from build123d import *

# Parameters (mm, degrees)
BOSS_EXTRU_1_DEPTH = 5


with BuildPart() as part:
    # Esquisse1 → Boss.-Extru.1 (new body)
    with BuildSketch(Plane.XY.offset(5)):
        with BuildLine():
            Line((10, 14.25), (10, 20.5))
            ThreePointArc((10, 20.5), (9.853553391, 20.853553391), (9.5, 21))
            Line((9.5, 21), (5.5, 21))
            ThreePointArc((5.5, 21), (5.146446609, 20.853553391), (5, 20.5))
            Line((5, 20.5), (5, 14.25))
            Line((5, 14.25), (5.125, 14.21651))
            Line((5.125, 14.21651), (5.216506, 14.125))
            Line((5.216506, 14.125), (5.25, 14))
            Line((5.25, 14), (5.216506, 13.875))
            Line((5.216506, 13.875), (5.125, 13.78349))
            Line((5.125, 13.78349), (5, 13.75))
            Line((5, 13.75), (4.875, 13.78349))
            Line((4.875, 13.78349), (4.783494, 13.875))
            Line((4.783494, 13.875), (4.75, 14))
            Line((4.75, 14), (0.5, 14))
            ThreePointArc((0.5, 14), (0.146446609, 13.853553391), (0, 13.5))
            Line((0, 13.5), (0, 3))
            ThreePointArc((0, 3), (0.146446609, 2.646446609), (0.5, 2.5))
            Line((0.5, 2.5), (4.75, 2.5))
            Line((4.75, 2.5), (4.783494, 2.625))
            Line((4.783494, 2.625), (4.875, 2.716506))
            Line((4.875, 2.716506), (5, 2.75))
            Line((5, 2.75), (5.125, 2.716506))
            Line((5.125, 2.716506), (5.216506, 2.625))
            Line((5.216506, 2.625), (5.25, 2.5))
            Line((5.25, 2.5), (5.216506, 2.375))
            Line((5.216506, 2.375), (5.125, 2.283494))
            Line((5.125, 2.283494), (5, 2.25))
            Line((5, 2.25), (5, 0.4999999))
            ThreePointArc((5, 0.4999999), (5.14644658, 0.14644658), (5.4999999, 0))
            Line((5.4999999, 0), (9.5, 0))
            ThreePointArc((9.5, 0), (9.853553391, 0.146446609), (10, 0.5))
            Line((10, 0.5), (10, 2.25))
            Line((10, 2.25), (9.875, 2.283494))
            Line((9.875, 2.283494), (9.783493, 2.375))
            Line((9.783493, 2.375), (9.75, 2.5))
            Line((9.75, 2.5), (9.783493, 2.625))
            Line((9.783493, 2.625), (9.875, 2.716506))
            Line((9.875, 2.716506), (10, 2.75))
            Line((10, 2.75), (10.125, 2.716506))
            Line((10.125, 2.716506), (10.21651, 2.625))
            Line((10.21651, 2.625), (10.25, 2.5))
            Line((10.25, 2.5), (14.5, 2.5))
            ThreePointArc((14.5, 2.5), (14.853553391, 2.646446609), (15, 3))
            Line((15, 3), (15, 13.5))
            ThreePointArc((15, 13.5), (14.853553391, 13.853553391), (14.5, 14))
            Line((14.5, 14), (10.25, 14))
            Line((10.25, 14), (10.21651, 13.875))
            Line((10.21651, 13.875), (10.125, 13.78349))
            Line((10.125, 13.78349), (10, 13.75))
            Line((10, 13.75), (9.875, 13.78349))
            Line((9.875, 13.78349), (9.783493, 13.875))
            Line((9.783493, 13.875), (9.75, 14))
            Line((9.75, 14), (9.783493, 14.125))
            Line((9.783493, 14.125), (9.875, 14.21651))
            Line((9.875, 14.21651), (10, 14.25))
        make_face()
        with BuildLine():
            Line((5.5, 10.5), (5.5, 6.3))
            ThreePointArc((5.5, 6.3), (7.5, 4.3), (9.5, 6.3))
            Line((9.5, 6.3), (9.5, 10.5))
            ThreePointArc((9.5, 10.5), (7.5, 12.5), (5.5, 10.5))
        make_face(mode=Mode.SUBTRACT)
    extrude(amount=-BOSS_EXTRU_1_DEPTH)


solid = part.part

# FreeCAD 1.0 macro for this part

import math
import FreeCAD as App
import Part
import Sketcher
from FreeCAD import Vector

doc = App.newDocument("Part")
params = doc.addObject("Spreadsheet::Sheet", "Params")
for row, (alias, value) in enumerate([
    ("sketch1_radius", "2 mm"),
    ("sketch1_radius2", "0.5 mm"),
    ("sketch1_height", "10.5 mm"),
    ("sketch1_height2", "4.2 mm"),
    ("sketch1_width", "4.25 mm"),
    ("pad1_length", "5 mm"),
], start=1):
    params.set(f"A{row}", alias)
    params.set(f"B{row}", "=" + value)
    params.setAlias(f"B{row}", alias)

body = doc.addObject("PartDesign::Body", "Body")

sketch1 = doc.addObject("Sketcher::SketchObject", "Sketch")
body.addObject(sketch1)
sketch1.AttachmentSupport = (doc.XY_Plane, [""])
sketch1.MapMode = "FlatFace"
sketch1.AttachmentOffset = App.Placement(Vector(0, 0, 5), App.Rotation())
sketch1.addGeometry([
    Part.LineSegment(Vector(10, 14.25, 0), Vector(10, 20.5, 0)),
    Part.ArcOfCircle(Part.Circle(Vector(9.5, 20.5, 0), Vector(0, 0, 1), 0.5), math.radians(0), math.radians(90)),
    Part.LineSegment(Vector(9.5, 21, 0), Vector(5.5, 21, 0)),
    Part.ArcOfCircle(Part.Circle(Vector(5.5, 20.5, 0), Vector(0, 0, 1), 0.5), math.radians(90), math.radians(180)),
    Part.LineSegment(Vector(5, 20.5, 0), Vector(5, 14.25, 0)),
    Part.LineSegment(Vector(5, 14.25, 0), Vector(5.125, 14.21651, 0)),
    Part.LineSegment(Vector(5.125, 14.21651, 0), Vector(5.216506, 14.125, 0)),
    Part.LineSegment(Vector(5.216506, 14.125, 0), Vector(5.25, 14, 0)),
    Part.LineSegment(Vector(5.25, 14, 0), Vector(5.216506, 13.875, 0)),
    Part.LineSegment(Vector(5.216506, 13.875, 0), Vector(5.125, 13.78349, 0)),
    Part.LineSegment(Vector(5.125, 13.78349, 0), Vector(5, 13.75, 0)),
    Part.LineSegment(Vector(5, 13.75, 0), Vector(4.875, 13.78349, 0)),
    Part.LineSegment(Vector(4.875, 13.78349, 0), Vector(4.783494, 13.875, 0)),
    Part.LineSegment(Vector(4.783494, 13.875, 0), Vector(4.75, 14, 0)),
    Part.LineSegment(Vector(4.75, 14, 0), Vector(0.5, 14, 0)),
    Part.ArcOfCircle(Part.Circle(Vector(0.5, 13.5, 0), Vector(0, 0, 1), 0.5), math.radians(90), math.radians(180)),
    Part.LineSegment(Vector(0, 13.5, 0), Vector(0, 3, 0)),
    Part.ArcOfCircle(Part.Circle(Vector(0.5, 3, 0), Vector(0, 0, 1), 0.5), math.radians(180), math.radians(270)),
    Part.LineSegment(Vector(0.5, 2.5, 0), Vector(4.75, 2.5, 0)),
    Part.LineSegment(Vector(4.75, 2.5, 0), Vector(4.783494, 2.625, 0)),
    Part.LineSegment(Vector(4.783494, 2.625, 0), Vector(4.875, 2.716506, 0)),
    Part.LineSegment(Vector(4.875, 2.716506, 0), Vector(5, 2.75, 0)),
    Part.LineSegment(Vector(5, 2.75, 0), Vector(5.125, 2.716506, 0)),
    Part.LineSegment(Vector(5.125, 2.716506, 0), Vector(5.216506, 2.625, 0)),
    Part.LineSegment(Vector(5.216506, 2.625, 0), Vector(5.25, 2.5, 0)),
    Part.LineSegment(Vector(5.25, 2.5, 0), Vector(5.216506, 2.375, 0)),
    Part.LineSegment(Vector(5.216506, 2.375, 0), Vector(5.125, 2.283494, 0)),
    Part.LineSegment(Vector(5.125, 2.283494, 0), Vector(5, 2.25, 0)),
    Part.LineSegment(Vector(5, 2.25, 0), Vector(5, 0.5, 0)),
    Part.ArcOfCircle(Part.Circle(Vector(5.5, 0.5, 0), Vector(0, 0, 1), 0.5), math.radians(180), math.radians(270)),
    Part.LineSegment(Vector(5.5, 0, 0), Vector(9.5, 0, 0)),
    Part.ArcOfCircle(Part.Circle(Vector(9.5, 0.5, 0), Vector(0, 0, 1), 0.5), math.radians(-90), math.radians(0)),
    Part.LineSegment(Vector(10, 0.5, 0), Vector(10, 2.25, 0)),
    Part.LineSegment(Vector(10, 2.25, 0), Vector(9.875, 2.283494, 0)),
    Part.LineSegment(Vector(9.875, 2.283494, 0), Vector(9.783493, 2.375, 0)),
    Part.LineSegment(Vector(9.783493, 2.375, 0), Vector(9.75, 2.5, 0)),
    Part.LineSegment(Vector(9.75, 2.5, 0), Vector(9.783493, 2.625, 0)),
    Part.LineSegment(Vector(9.783493, 2.625, 0), Vector(9.875, 2.716506, 0)),
    Part.LineSegment(Vector(9.875, 2.716506, 0), Vector(10, 2.75, 0)),
    Part.LineSegment(Vector(10, 2.75, 0), Vector(10.125, 2.716506, 0)),
    Part.LineSegment(Vector(10.125, 2.716506, 0), Vector(10.21651, 2.625, 0)),
    Part.LineSegment(Vector(10.21651, 2.625, 0), Vector(10.25, 2.5, 0)),
    Part.LineSegment(Vector(10.25, 2.5, 0), Vector(14.5, 2.5, 0)),
    Part.ArcOfCircle(Part.Circle(Vector(14.5, 3, 0), Vector(0, 0, 1), 0.5), math.radians(-90), math.radians(0)),
    Part.LineSegment(Vector(15, 3, 0), Vector(15, 13.5, 0)),
    Part.ArcOfCircle(Part.Circle(Vector(14.5, 13.5, 0), Vector(0, 0, 1), 0.5), math.radians(0), math.radians(90)),
    Part.LineSegment(Vector(14.5, 14, 0), Vector(10.25, 14, 0)),
    Part.LineSegment(Vector(10.25, 14, 0), Vector(10.21651, 13.875, 0)),
    Part.LineSegment(Vector(10.21651, 13.875, 0), Vector(10.125, 13.78349, 0)),
    Part.LineSegment(Vector(10.125, 13.78349, 0), Vector(10, 13.75, 0)),
    Part.LineSegment(Vector(10, 13.75, 0), Vector(9.875, 13.78349, 0)),
    Part.LineSegment(Vector(9.875, 13.78349, 0), Vector(9.783493, 13.875, 0)),
    Part.LineSegment(Vector(9.783493, 13.875, 0), Vector(9.75, 14, 0)),
    Part.LineSegment(Vector(9.75, 14, 0), Vector(9.783493, 14.125, 0)),
    Part.LineSegment(Vector(9.783493, 14.125, 0), Vector(9.875, 14.21651, 0)),
    Part.LineSegment(Vector(9.875, 14.21651, 0), Vector(10, 14.25, 0)),
    Part.LineSegment(Vector(5.5, 6.3, 0), Vector(5.5, 10.5, 0)),
    Part.ArcOfCircle(Part.Circle(Vector(7.5, 10.5, 0), Vector(0, 0, 1), 2), math.radians(0), math.radians(180)),
    Part.LineSegment(Vector(9.5, 10.5, 0), Vector(9.5, 6.3, 0)),
    Part.ArcOfCircle(Part.Circle(Vector(7.5, 6.3, 0), Vector(0, 0, 1), 2), math.radians(180), math.radians(360)),
], False)
sketch1.addConstraint([
    Sketcher.Constraint("Tangent", 0, 2, 1, 1),
    Sketcher.Constraint("Tangent", 1, 2, 2, 1),
    Sketcher.Constraint("Tangent", 2, 2, 3, 1),
    Sketcher.Constraint("Tangent", 3, 2, 4, 1),
    Sketcher.Constraint("Coincident", 4, 2, 5, 1),
    Sketcher.Constraint("Coincident", 5, 2, 6, 1),
    Sketcher.Constraint("Coincident", 6, 2, 7, 1),
    Sketcher.Constraint("Coincident", 7, 2, 8, 1),
    Sketcher.Constraint("Coincident", 8, 2, 9, 1),
    Sketcher.Constraint("Coincident", 9, 2, 10, 1),
    Sketcher.Constraint("Coincident", 10, 2, 11, 1),
    Sketcher.Constraint("Coincident", 11, 2, 12, 1),
    Sketcher.Constraint("Coincident", 12, 2, 13, 1),
    Sketcher.Constraint("Coincident", 13, 2, 14, 1),
    Sketcher.Constraint("Tangent", 14, 2, 15, 1),
    Sketcher.Constraint("Tangent", 15, 2, 16, 1),
    Sketcher.Constraint("Tangent", 16, 2, 17, 1),
    Sketcher.Constraint("Tangent", 17, 2, 18, 1),
    Sketcher.Constraint("Coincident", 18, 2, 19, 1),
    Sketcher.Constraint("Coincident", 19, 2, 20, 1),
    Sketcher.Constraint("Coincident", 20, 2, 21, 1),
    Sketcher.Constraint("Coincident", 21, 2, 22, 1),
    Sketcher.Constraint("Coincident", 22, 2, 23, 1),
    Sketcher.Constraint("Coincident", 23, 2, 24, 1),
    Sketcher.Constraint("Coincident", 24, 2, 25, 1),
    Sketcher.Constraint("Coincident", 25, 2, 26, 1),
    Sketcher.Constraint("Coincident", 26, 2, 27, 1),
    Sketcher.Constraint("Coincident", 27, 2, 28, 1),
    Sketcher.Constraint("Tangent", 28, 2, 29, 1),
    Sketcher.Constraint("Tangent", 29, 2, 30, 1),
    Sketcher.Constraint("Tangent", 30, 2, 31, 1),
    Sketcher.Constraint("Tangent", 31, 2, 32, 1),
    Sketcher.Constraint("Coincident", 32, 2, 33, 1),
    Sketcher.Constraint("Coincident", 33, 2, 34, 1),
    Sketcher.Constraint("Coincident", 34, 2, 35, 1),
    Sketcher.Constraint("Coincident", 35, 2, 36, 1),
    Sketcher.Constraint("Coincident", 36, 2, 37, 1),
    Sketcher.Constraint("Coincident", 37, 2, 38, 1),
    Sketcher.Constraint("Coincident", 38, 2, 39, 1),
    Sketcher.Constraint("Coincident", 39, 2, 40, 1),
    Sketcher.Constraint("Coincident", 40, 2, 41, 1),
    Sketcher.Constraint("Coincident", 41, 2, 42, 1),
    Sketcher.Constraint("Tangent", 42, 2, 43, 1),
    Sketcher.Constraint("Tangent", 43, 2, 44, 1),
    Sketcher.Constraint("Tangent", 44, 2, 45, 1),
    Sketcher.Constraint("Tangent", 45, 2, 46, 1),
    Sketcher.Constraint("Coincident", 46, 2, 47, 1),
    Sketcher.Constraint("Coincident", 47, 2, 48, 1),
    Sketcher.Constraint("Coincident", 48, 2, 49, 1),
    Sketcher.Constraint("Coincident", 49, 2, 50, 1),
    Sketcher.Constraint("Coincident", 50, 2, 51, 1),
    Sketcher.Constraint("Coincident", 51, 2, 52, 1),
    Sketcher.Constraint("Coincident", 52, 2, 53, 1),
    Sketcher.Constraint("Coincident", 53, 2, 54, 1),
    Sketcher.Constraint("Coincident", 54, 2, 55, 1),
    Sketcher.Constraint("Coincident", 55, 2, 0, 1),
    Sketcher.Constraint("Tangent", 56, 2, 57, 2),
    Sketcher.Constraint("Tangent", 57, 1, 58, 1),
    Sketcher.Constraint("Tangent", 58, 2, 59, 2),
    Sketcher.Constraint("Tangent", 59, 1, 56, 1),
    Sketcher.Constraint("Vertical", 0),
    Sketcher.Constraint("Horizontal", 2),
    Sketcher.Constraint("Vertical", 4),
    Sketcher.Constraint("Horizontal", 14),
    Sketcher.Constraint("Vertical", 16),
    Sketcher.Constraint("Horizontal", 18),
    Sketcher.Constraint("Vertical", 28),
    Sketcher.Constraint("Horizontal", 30),
    Sketcher.Constraint("Vertical", 32),
    Sketcher.Constraint("Horizontal", 42),
    Sketcher.Constraint("Vertical", 44),
    Sketcher.Constraint("Horizontal", 46),
    Sketcher.Constraint("Vertical", 56),
    Sketcher.Constraint("Vertical", 58),
    Sketcher.Constraint("Equal", 1, 3),
    Sketcher.Constraint("Equal", 3, 15),
    Sketcher.Constraint("Equal", 15, 17),
    Sketcher.Constraint("Equal", 17, 29),
    Sketcher.Constraint("Equal", 29, 31),
    Sketcher.Constraint("Equal", 31, 43),
    Sketcher.Constraint("Equal", 43, 45),
    Sketcher.Constraint("PointOnObject", 15, 2, -2),
    Sketcher.Constraint("PointOnObject", 29, 2, -1),
    Sketcher.Constraint("Parallel", 5, 11),
    Sketcher.Constraint("Parallel", 6, 12),
    Sketcher.Constraint("Parallel", 7, 13),
    Sketcher.Constraint("Parallel", 8, 19),
    Sketcher.Constraint("Perpendicular", 13, 21),
    Sketcher.Constraint("Perpendicular", 19, 22),
    Sketcher.Constraint("Perpendicular", 20, 23),
    Sketcher.Constraint("Perpendicular", 21, 24),
    Sketcher.Constraint("Perpendicular", 22, 25),
    Sketcher.Constraint("Perpendicular", 23, 26),
    Sketcher.Constraint("Perpendicular", 24, 27),
    Sketcher.Constraint("Perpendicular", 25, 33),
    Sketcher.Constraint("Parallel", 27, 38),
    Sketcher.Constraint("Parallel", 33, 39),
    Sketcher.Constraint("Perpendicular", 9, 40),
    Sketcher.Constraint("Perpendicular", 10, 41),
    Sketcher.Constraint("Perpendicular", 11, 47),
    Sketcher.Constraint("Parallel", 26, 48),
    Sketcher.Constraint("Perpendicular", 41, 49),
    Sketcher.Constraint("Perpendicular", 47, 50),
    Sketcher.Constraint("Parallel", 35, 52),
    Sketcher.Constraint("Parallel", 36, 53),
    Sketcher.Constraint("Parallel", 49, 55),
    Sketcher.Constraint("Horizontal", 17, 3, 43, 3),
    Sketcher.Constraint("Horizontal", 15, 3, 45, 3),
    Sketcher.Constraint("Horizontal", 9, 2, 11, 2),
    Sketcher.Constraint("Horizontal", 8, 2, 12, 2),
    Sketcher.Constraint("Horizontal", 7, 2, 13, 2),
    Sketcher.Constraint("Horizontal", 20, 2, 22, 2),
    Sketcher.Constraint("Horizontal", 19, 2, 23, 2),
    Sketcher.Constraint("Horizontal", 18, 2, 24, 2),
    Sketcher.Constraint("Horizontal", 27, 2, 32, 2),
    Sketcher.Constraint("Horizontal", 26, 2, 33, 2),
    Sketcher.Constraint("Horizontal", 25, 2, 34, 2),
    Sketcher.Constraint("Horizontal", 24, 2, 35, 2),
    Sketcher.Constraint("Horizontal", 23, 2, 36, 2),
    Sketcher.Constraint("Horizontal", 22, 2, 37, 2),
    Sketcher.Constraint("Horizontal", 21, 2, 38, 2),
    Sketcher.Constraint("Horizontal", 37, 2, 39, 2),
    Sketcher.Constraint("Horizontal", 36, 2, 40, 2),
    Sketcher.Constraint("Horizontal", 12, 2, 47, 2),
    Sketcher.Constraint("Horizontal", 11, 2, 48, 2),
    Sketcher.Constraint("Horizontal", 10, 2, 49, 2),
    Sketcher.Constraint("Horizontal", 48, 2, 50, 2),
    Sketcher.Constraint("Horizontal", 47, 2, 51, 2),
    Sketcher.Constraint("Horizontal", 46, 2, 52, 2),
    Sketcher.Constraint("Horizontal", 6, 2, 53, 2),
    Sketcher.Constraint("Horizontal", 5, 2, 54, 2),
    Sketcher.Constraint("Horizontal", 4, 2, 55, 2),
    Sketcher.Constraint("Vertical", 3, 3, 29, 3),
    Sketcher.Constraint("Vertical", 1, 3, 31, 3),
    Sketcher.Constraint("Vertical", 6, 2, 8, 2),
    Sketcher.Constraint("Vertical", 5, 2, 9, 2),
    Sketcher.Constraint("Vertical", 4, 2, 10, 2),
    Sketcher.Constraint("Vertical", 13, 2, 18, 2),
    Sketcher.Constraint("Vertical", 12, 2, 19, 2),
    Sketcher.Constraint("Vertical", 11, 2, 20, 2),
    Sketcher.Constraint("Vertical", 10, 2, 21, 2),
    Sketcher.Constraint("Vertical", 9, 2, 22, 2),
    Sketcher.Constraint("Vertical", 8, 2, 23, 2),
    Sketcher.Constraint("Vertical", 7, 2, 24, 2),
    Sketcher.Constraint("Vertical", 23, 2, 25, 2),
    Sketcher.Constraint("Vertical", 22, 2, 26, 2),
    Sketcher.Constraint("Vertical", 34, 2, 36, 2),
    Sketcher.Constraint("Vertical", 33, 2, 37, 2),
    Sketcher.Constraint("Vertical", 41, 2, 46, 2),
    Sketcher.Constraint("Vertical", 36, 2, 51, 2),
    Sketcher.Constraint("Vertical", 29, 2, 56, 2),
    Sketcher.Constraint("Vertical", 30, 2, 57, 1),
    Sketcher.Constraint("Equal", 18, 42),
    Sketcher.Constraint("Equal", 5, 7),
    Sketcher.Constraint("Equal", 6, 9),
    Sketcher.Constraint("Equal", 19, 20),
    Sketcher.Constraint("Equal", 20, 21),
    Sketcher.Constraint("Equal", 33, 34),
    Sketcher.Constraint("Equal", 34, 35),
    Sketcher.Constraint("Radius", 57, 2.0),
    Sketcher.Constraint("Radius", 1, 0.5),
    Sketcher.Constraint("DistanceY", 16, 2, 16, 1, 10.5),
    Sketcher.Constraint("DistanceY", 56, 1, 56, 2, 4.2),
    Sketcher.Constraint("DistanceY", -1, 1, 17, 3, 3.0),
    Sketcher.Constraint("DistanceX", -1, 1, 0, 2, 10.0),
    Sketcher.Constraint("DistanceY", -1, 1, 1, 2, 21.0),
    Sketcher.Constraint("DistanceX", -1, 1, 43, 2, 15.0),
    Sketcher.Constraint("DistanceX", 14, 2, 14, 1, 4.25),
    Sketcher.Constraint("DistanceY", -1, 1, 57, 3, 10.5),
    Sketcher.Constraint("DistanceX", -1, 1, 5, 2, 5.125),
])
sketch1.setExpression("Constraints[159]", "Params.sketch1_radius")
sketch1.setExpression("Constraints[160]", "Params.sketch1_radius2")
sketch1.setExpression("Constraints[161]", "Params.sketch1_height")
sketch1.setExpression("Constraints[162]", "Params.sketch1_height2")
sketch1.setExpression("Constraints[167]", "Params.sketch1_width")
pad1 = doc.addObject("PartDesign::Pad", "Pad")
body.addObject(pad1)
pad1.Profile = sketch1
pad1.setExpression("Length", "Params.pad1_length")
pad1.Reversed = True

doc.recompute()
